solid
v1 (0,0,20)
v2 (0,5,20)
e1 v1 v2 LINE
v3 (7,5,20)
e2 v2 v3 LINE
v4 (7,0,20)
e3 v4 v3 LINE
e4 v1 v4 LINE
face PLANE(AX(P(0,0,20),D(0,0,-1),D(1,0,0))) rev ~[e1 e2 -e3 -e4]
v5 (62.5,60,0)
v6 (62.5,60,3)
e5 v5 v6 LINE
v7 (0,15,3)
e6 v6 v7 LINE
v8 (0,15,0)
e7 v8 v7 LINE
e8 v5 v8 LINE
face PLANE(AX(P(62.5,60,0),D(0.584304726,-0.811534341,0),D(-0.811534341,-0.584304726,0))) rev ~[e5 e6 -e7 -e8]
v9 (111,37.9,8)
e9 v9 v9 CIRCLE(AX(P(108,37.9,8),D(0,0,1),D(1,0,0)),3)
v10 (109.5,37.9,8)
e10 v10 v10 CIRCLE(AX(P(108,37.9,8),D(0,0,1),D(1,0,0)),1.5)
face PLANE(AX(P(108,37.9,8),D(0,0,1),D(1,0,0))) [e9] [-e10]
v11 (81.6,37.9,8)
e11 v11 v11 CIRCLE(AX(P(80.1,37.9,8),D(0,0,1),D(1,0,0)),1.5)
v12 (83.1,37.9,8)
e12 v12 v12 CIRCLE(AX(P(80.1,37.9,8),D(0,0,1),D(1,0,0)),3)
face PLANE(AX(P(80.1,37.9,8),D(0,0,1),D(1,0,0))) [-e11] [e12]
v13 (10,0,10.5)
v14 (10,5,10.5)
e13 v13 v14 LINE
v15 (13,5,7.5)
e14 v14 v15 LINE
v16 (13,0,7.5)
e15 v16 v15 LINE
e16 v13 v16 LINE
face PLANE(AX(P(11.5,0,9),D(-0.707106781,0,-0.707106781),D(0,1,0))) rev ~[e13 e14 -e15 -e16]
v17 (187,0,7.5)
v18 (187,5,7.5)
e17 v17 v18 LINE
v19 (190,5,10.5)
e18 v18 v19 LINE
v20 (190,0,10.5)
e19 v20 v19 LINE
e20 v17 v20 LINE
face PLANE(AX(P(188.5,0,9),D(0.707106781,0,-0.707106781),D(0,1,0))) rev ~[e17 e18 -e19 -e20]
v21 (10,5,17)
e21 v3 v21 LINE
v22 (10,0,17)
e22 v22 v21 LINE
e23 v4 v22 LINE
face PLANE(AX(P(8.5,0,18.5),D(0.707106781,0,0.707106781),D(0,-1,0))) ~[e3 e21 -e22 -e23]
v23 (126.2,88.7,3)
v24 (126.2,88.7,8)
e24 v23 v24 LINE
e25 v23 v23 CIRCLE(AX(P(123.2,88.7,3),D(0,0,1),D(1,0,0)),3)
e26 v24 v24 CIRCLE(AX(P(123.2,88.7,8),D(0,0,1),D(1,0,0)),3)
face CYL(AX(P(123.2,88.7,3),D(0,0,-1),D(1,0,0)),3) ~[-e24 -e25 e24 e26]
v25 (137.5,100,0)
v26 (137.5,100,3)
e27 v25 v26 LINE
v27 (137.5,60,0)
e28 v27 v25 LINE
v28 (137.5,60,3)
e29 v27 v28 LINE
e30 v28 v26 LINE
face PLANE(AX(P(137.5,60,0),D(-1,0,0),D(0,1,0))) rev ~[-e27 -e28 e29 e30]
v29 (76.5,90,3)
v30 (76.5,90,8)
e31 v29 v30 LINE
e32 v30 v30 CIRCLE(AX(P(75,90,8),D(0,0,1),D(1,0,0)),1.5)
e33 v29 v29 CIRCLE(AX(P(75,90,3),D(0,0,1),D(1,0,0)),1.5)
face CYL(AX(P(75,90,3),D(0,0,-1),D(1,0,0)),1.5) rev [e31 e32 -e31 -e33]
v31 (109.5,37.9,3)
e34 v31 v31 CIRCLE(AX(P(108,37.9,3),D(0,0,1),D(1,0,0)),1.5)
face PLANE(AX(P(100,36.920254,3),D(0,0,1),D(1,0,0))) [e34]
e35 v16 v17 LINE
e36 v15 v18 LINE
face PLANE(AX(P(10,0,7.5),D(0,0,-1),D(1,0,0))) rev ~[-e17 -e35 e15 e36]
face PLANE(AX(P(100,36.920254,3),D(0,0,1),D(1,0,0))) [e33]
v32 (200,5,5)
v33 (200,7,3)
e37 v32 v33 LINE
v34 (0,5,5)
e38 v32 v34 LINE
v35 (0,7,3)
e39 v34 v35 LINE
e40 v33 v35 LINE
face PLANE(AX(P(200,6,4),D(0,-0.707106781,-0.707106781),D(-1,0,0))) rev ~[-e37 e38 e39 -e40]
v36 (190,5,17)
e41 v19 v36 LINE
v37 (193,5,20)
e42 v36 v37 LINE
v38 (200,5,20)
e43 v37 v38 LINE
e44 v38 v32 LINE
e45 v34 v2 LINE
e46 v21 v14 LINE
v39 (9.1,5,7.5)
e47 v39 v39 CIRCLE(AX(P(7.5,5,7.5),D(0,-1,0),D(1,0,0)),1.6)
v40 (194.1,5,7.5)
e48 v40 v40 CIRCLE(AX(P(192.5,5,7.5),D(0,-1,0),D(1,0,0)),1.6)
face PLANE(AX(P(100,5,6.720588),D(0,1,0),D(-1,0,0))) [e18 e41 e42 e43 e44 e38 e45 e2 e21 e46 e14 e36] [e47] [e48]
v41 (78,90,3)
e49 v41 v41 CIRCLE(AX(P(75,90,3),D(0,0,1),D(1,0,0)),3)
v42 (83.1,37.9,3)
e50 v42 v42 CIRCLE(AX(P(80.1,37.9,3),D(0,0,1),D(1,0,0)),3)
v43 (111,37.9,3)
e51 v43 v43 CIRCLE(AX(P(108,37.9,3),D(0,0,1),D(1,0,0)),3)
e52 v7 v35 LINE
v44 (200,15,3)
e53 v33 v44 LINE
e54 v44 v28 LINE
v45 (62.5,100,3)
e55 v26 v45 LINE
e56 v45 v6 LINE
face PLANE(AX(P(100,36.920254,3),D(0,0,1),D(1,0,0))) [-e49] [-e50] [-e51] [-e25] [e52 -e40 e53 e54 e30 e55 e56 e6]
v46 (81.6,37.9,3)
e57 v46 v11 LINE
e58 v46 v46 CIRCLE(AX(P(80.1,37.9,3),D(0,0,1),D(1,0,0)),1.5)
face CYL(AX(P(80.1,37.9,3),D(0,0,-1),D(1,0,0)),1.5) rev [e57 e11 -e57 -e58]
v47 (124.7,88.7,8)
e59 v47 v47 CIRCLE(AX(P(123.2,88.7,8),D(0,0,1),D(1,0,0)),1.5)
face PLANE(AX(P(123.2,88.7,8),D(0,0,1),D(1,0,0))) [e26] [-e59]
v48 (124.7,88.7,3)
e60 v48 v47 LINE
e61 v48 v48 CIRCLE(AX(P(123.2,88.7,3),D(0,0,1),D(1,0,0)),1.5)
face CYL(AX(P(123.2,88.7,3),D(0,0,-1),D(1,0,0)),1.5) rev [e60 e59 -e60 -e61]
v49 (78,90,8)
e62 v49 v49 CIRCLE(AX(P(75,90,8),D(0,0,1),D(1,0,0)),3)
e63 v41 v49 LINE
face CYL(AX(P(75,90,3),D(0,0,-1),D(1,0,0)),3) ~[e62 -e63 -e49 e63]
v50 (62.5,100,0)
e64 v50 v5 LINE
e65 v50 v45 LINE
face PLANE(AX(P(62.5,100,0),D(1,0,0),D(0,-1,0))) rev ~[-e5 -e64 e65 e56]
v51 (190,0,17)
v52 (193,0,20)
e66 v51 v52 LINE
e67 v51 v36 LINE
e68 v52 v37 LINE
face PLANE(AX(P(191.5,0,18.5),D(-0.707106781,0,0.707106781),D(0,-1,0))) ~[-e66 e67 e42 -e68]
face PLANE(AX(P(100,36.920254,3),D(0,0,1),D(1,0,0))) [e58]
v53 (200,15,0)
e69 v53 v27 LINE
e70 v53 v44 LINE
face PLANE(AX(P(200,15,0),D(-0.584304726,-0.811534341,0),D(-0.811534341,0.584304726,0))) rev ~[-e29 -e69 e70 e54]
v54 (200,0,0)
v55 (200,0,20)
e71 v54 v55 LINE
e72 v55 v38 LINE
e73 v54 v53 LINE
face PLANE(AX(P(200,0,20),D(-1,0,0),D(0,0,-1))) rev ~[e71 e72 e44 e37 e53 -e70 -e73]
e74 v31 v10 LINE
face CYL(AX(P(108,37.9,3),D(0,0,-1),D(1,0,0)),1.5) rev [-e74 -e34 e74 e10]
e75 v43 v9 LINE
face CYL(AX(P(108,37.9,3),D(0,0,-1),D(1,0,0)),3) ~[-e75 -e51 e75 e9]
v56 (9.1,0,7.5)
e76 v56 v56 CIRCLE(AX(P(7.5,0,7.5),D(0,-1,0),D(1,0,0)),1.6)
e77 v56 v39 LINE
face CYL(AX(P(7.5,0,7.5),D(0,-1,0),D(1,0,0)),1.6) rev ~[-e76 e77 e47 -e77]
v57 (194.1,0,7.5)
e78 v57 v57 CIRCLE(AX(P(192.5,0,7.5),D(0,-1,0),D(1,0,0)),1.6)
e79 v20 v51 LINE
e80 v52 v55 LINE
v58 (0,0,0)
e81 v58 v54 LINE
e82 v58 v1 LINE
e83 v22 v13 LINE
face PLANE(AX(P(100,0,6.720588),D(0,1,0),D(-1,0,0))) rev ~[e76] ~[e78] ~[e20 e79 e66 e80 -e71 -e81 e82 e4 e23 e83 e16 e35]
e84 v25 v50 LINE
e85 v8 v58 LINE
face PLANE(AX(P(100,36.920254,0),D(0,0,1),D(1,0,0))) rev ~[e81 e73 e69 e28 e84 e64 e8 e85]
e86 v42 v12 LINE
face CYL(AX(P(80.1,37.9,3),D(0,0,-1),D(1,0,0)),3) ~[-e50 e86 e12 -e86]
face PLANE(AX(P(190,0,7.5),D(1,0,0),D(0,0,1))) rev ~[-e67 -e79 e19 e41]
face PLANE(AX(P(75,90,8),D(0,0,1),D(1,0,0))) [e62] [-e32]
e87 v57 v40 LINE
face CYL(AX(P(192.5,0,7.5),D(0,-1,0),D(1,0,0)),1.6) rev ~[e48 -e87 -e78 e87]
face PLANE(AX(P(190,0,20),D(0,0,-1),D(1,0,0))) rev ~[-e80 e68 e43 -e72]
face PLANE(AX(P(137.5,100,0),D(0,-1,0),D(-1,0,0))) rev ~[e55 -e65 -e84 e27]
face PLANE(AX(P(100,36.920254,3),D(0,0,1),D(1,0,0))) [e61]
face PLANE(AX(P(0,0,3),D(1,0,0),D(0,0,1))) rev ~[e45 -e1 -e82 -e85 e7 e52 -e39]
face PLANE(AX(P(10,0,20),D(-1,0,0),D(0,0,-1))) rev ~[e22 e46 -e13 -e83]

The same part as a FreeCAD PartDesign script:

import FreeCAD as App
import Part
import Sketcher

V = App.Vector


def edges_at(feature, points):
    """Names of the edges that pass closest to the given points."""
    edges = feature.Shape.Edges
    near = lambda p: min(range(len(edges)), key=lambda i: edges[i].distToShape(Part.Vertex(*p))[0])
    return sorted({f"Edge{near(p) + 1}" for p in points})

doc = App.newDocument("Part")
body = doc.addObject("PartDesign::Body", "Body")

sketch1 = doc.addObject("Sketcher::SketchObject", "Sketch")
body.addObject(sketch1)
sketch1.AttachmentSupport = (doc.XY_Plane, [""])
sketch1.MapMode = "FlatFace"
sketch1.addGeometry(Part.LineSegment(V(0, 0, 0), V(200, 0, 0)), False)
sketch1.addGeometry(Part.LineSegment(V(200, 0, 0), V(200, 15, 0)), False)
sketch1.addGeometry(Part.LineSegment(V(200, 15, 0), V(137.5, 60, 0)), False)
sketch1.addGeometry(Part.LineSegment(V(137.5, 60, 0), V(137.5, 100, 0)), False)
sketch1.addGeometry(Part.LineSegment(V(137.5, 100, 0), V(62.5, 100, 0)), False)
sketch1.addGeometry(Part.LineSegment(V(62.5, 100, 0), V(62.5, 60, 0)), False)
sketch1.addGeometry(Part.LineSegment(V(62.5, 60, 0), V(0, 15, 0)), False)
sketch1.addGeometry(Part.LineSegment(V(0, 15, 0), V(0, 0, 0)), False)
sketch1.addConstraint(Sketcher.Constraint("Coincident", 0, 2, 1, 1))
sketch1.addConstraint(Sketcher.Constraint("Coincident", 1, 2, 2, 1))
sketch1.addConstraint(Sketcher.Constraint("Coincident", 2, 2, 3, 1))
sketch1.addConstraint(Sketcher.Constraint("Coincident", 3, 2, 4, 1))
sketch1.addConstraint(Sketcher.Constraint("Coincident", 4, 2, 5, 1))
sketch1.addConstraint(Sketcher.Constraint("Coincident", 5, 2, 6, 1))
sketch1.addConstraint(Sketcher.Constraint("Coincident", 6, 2, 7, 1))
sketch1.addConstraint(Sketcher.Constraint("Coincident", 7, 2, 0, 1))
sketch1.addConstraint(Sketcher.Constraint("Horizontal", 0))
sketch1.addConstraint(Sketcher.Constraint("Vertical", 1))
sketch1.addConstraint(Sketcher.Constraint("Vertical", 3))
sketch1.addConstraint(Sketcher.Constraint("Horizontal", 4))
sketch1.addConstraint(Sketcher.Constraint("Vertical", 5))
sketch1.addConstraint(Sketcher.Constraint("Vertical", 7))
sketch1.addConstraint(Sketcher.Constraint("Coincident", 7, 2, -1, 1))
sketch1.addConstraint(Sketcher.Constraint("Horizontal", 2, 2, 5, 2))
sketch1.addConstraint(Sketcher.Constraint("Horizontal", 1, 2, 6, 2))
sketch1.addConstraint(Sketcher.Constraint("Equal", 2, 6))
sketch1.addConstraint(Sketcher.Constraint("DistanceX", 0, 1, 0, 2, 200.0))
sketch1.addConstraint(Sketcher.Constraint("DistanceX", 4, 2, 4, 1, 75.0))
sketch1.addConstraint(Sketcher.Constraint("DistanceY", 1, 1, 1, 2, 15.0))
sketch1.addConstraint(Sketcher.Constraint("DistanceY", 3, 1, 3, 2, 40.0))
sketch1.addConstraint(Sketcher.Constraint("DistanceY", -1, 1, 2, 2, 60.0))
pad1 = doc.addObject("PartDesign::Pad", "Pad")
body.addObject(pad1)
pad1.Profile = sketch1
pad1.Length = 3

sketch2 = doc.addObject("Sketcher::SketchObject", "Sketch001")
body.addObject(sketch2)
sketch2.AttachmentSupport = (doc.XZ_Plane, [""])
sketch2.MapMode = "FlatFace"
sketch2.addGeometry(Part.LineSegment(V(0, 20, 0), V(0, 3, 0)), False)
sketch2.addGeometry(Part.LineSegment(V(0, 3, 0), V(200, 3, 0)), False)
sketch2.addGeometry(Part.LineSegment(V(200, 3, 0), V(200, 20, 0)), False)
sketch2.addGeometry(Part.LineSegment(V(200, 20, 0), V(190, 20, 0)), False)
sketch2.addGeometry(Part.LineSegment(V(190, 20, 0), V(190, 7.5, 0)), False)
sketch2.addGeometry(Part.LineSegment(V(190, 7.5, 0), V(10, 7.5, 0)), False)
sketch2.addGeometry(Part.LineSegment(V(10, 7.5, 0), V(10, 20, 0)), False)
sketch2.addGeometry(Part.LineSegment(V(10, 20, 0), V(0, 20, 0)), False)
sketch2.addConstraint(Sketcher.Constraint("Coincident", 0, 2, 1, 1))
sketch2.addConstraint(Sketcher.Constraint("Coincident", 1, 2, 2, 1))
sketch2.addConstraint(Sketcher.Constraint("Coincident", 2, 2, 3, 1))
sketch2.addConstraint(Sketcher.Constraint("Coincident", 3, 2, 4, 1))
sketch2.addConstraint(Sketcher.Constraint("Coincident", 4, 2, 5, 1))
sketch2.addConstraint(Sketcher.Constraint("Coincident", 5, 2, 6, 1))
sketch2.addConstraint(Sketcher.Constraint("Coincident", 6, 2, 7, 1))
sketch2.addConstraint(Sketcher.Constraint("Coincident", 7, 2, 0, 1))
sketch2.addConstraint(Sketcher.Constraint("Vertical", 0))
sketch2.addConstraint(Sketcher.Constraint("Horizontal", 1))
sketch2.addConstraint(Sketcher.Constraint("Vertical", 2))
sketch2.addConstraint(Sketcher.Constraint("Horizontal", 3))
sketch2.addConstraint(Sketcher.Constraint("Vertical", 4))
sketch2.addConstraint(Sketcher.Constraint("Horizontal", 5))
sketch2.addConstraint(Sketcher.Constraint("Vertical", 6))
sketch2.addConstraint(Sketcher.Constraint("Horizontal", 7))
sketch2.addConstraint(Sketcher.Constraint("PointOnObject", 0, 2, -2))
sketch2.addConstraint(Sketcher.Constraint("Horizontal", 3, 2, 6, 2))
sketch2.addConstraint(Sketcher.Constraint("Equal", 3, 7))
sketch2.addConstraint(Sketcher.Constraint("DistanceX", 1, 1, 1, 2, 200.0))
sketch2.addConstraint(Sketcher.Constraint("DistanceX", 3, 2, 3, 1, 10.0))
sketch2.addConstraint(Sketcher.Constraint("DistanceY", 0, 2, 0, 1, 17.0))
sketch2.addConstraint(Sketcher.Constraint("DistanceY", 4, 2, 4, 1, 12.5))
sketch2.addConstraint(Sketcher.Constraint("DistanceY", -1, 1, 0, 2, 3.0))
pad2 = doc.addObject("PartDesign::Pad", "Pad001")
body.addObject(pad2)
pad2.Profile = sketch2
pad2.Length = 5
pad2.Reversed = True

sketch3 = doc.addObject("Sketcher::SketchObject", "Sketch002")
body.addObject(sketch3)
sketch3.AttachmentSupport = (doc.XZ_Plane, [""])
sketch3.MapMode = "FlatFace"
sketch3.addGeometry(Part.Circle(V(7.5, 7.5, 0), V(0, 0, 1), 1.6), False)
sketch3.addGeometry(Part.Circle(V(192.5, 7.5, 0), V(0, 0, 1), 1.6), False)
sketch3.addConstraint(Sketcher.Constraint("Equal", 0, 1))
sketch3.addConstraint(Sketcher.Constraint("Horizontal", 0, 3, 1, 3))
sketch3.addConstraint(Sketcher.Constraint("Diameter", 0, 3.2))
sketch3.addConstraint(Sketcher.Constraint("DistanceX", 0, 3, 1, 3, 185.0))
sketch3.addConstraint(Sketcher.Constraint("DistanceX", -1, 1, 0, 3, 7.5))
sketch3.addConstraint(Sketcher.Constraint("DistanceY", -1, 1, 0, 3, 7.5))
pocket1 = doc.addObject("PartDesign::Pocket", "Pocket")
body.addObject(pocket1)
pocket1.Profile = sketch3
pocket1.Type = "ThroughAll"

sketch4 = doc.addObject("Sketcher::SketchObject", "Sketch003")
body.addObject(sketch4)
sketch4.AttachmentSupport = (doc.XY_Plane, [""])
sketch4.MapMode = "FlatFace"
sketch4.AttachmentOffset = App.Placement(V(0, 0, 3), App.Rotation())
sketch4.addGeometry(Part.Circle(V(75, 90, 0), V(0, 0, 1), 3), False)
sketch4.addGeometry(Part.Circle(V(75, 90, 0), V(0, 0, 1), 1.5), False)
sketch4.addGeometry(Part.Circle(V(123.2, 88.7, 0), V(0, 0, 1), 3), False)
sketch4.addGeometry(Part.Circle(V(123.2, 88.7, 0), V(0, 0, 1), 1.5), False)
sketch4.addGeometry(Part.Circle(V(108, 37.9, 0), V(0, 0, 1), 3), False)
sketch4.addGeometry(Part.Circle(V(108, 37.9, 0), V(0, 0, 1), 1.5), False)
sketch4.addGeometry(Part.Circle(V(80.1, 37.9, 0), V(0, 0, 1), 3), False)
sketch4.addGeometry(Part.Circle(V(80.1, 37.9, 0), V(0, 0, 1), 1.5), False)
sketch4.addConstraint(Sketcher.Constraint("Coincident", 1, 3, 0, 3))
sketch4.addConstraint(Sketcher.Constraint("Coincident", 3, 3, 2, 3))
sketch4.addConstraint(Sketcher.Constraint("Coincident", 5, 3, 4, 3))
sketch4.addConstraint(Sketcher.Constraint("Coincident", 7, 3, 6, 3))
sketch4.addConstraint(Sketcher.Constraint("Equal", 0, 2))
sketch4.addConstraint(Sketcher.Constraint("Equal", 1, 3))
sketch4.addConstraint(Sketcher.Constraint("Equal", 2, 4))
sketch4.addConstraint(Sketcher.Constraint("Equal", 3, 5))
sketch4.addConstraint(Sketcher.Constraint("Equal", 4, 6))
sketch4.addConstraint(Sketcher.Constraint("Equal", 5, 7))
sketch4.addConstraint(Sketcher.Constraint("Horizontal", 5, 3, 6, 3))
sketch4.addConstraint(Sketcher.Constraint("Diameter", 0, 6.0))
sketch4.addConstraint(Sketcher.Constraint("Diameter", 1, 3.0))
sketch4.addConstraint(Sketcher.Constraint("DistanceX", -1, 1, 0, 3, 75.0))
sketch4.addConstraint(Sketcher.Constraint("DistanceY", -1, 1, 0, 3, 90.0))
sketch4.addConstraint(Sketcher.Constraint("DistanceX", -1, 1, 4, 3, 108.0))
sketch4.addConstraint(Sketcher.Constraint("DistanceX", -1, 1, 2, 3, 123.2))
sketch4.addConstraint(Sketcher.Constraint("DistanceY", -1, 1, 2, 3, 88.7))
sketch4.addConstraint(Sketcher.Constraint("DistanceY", -1, 1, 4, 3, 37.9))
sketch4.addConstraint(Sketcher.Constraint("DistanceX", -1, 1, 6, 3, 80.1))
pad3 = doc.addObject("PartDesign::Pad", "Pad002")
body.addObject(pad3)
pad3.Profile = sketch4
pad3.Length = 5
doc.recompute()

chamfer = doc.addObject("PartDesign::Chamfer", "Chamfer")
body.addObject(chamfer)
chamfer.Base = (pad3, edges_at(pad3, [
    (10, 2.5, 7.5),
    (190, 2.5, 7.5),
    (190, 2.5, 20),
    (10, 2.5, 20),
]))
chamfer.Size = 3
doc.recompute()

chamfer2 = doc.addObject("PartDesign::Chamfer", "Chamfer001")
body.addObject(chamfer2)
chamfer2.Base = (chamfer, edges_at(chamfer, [(100, 5, 3)]))
chamfer2.Size = 2

doc.recompute()
